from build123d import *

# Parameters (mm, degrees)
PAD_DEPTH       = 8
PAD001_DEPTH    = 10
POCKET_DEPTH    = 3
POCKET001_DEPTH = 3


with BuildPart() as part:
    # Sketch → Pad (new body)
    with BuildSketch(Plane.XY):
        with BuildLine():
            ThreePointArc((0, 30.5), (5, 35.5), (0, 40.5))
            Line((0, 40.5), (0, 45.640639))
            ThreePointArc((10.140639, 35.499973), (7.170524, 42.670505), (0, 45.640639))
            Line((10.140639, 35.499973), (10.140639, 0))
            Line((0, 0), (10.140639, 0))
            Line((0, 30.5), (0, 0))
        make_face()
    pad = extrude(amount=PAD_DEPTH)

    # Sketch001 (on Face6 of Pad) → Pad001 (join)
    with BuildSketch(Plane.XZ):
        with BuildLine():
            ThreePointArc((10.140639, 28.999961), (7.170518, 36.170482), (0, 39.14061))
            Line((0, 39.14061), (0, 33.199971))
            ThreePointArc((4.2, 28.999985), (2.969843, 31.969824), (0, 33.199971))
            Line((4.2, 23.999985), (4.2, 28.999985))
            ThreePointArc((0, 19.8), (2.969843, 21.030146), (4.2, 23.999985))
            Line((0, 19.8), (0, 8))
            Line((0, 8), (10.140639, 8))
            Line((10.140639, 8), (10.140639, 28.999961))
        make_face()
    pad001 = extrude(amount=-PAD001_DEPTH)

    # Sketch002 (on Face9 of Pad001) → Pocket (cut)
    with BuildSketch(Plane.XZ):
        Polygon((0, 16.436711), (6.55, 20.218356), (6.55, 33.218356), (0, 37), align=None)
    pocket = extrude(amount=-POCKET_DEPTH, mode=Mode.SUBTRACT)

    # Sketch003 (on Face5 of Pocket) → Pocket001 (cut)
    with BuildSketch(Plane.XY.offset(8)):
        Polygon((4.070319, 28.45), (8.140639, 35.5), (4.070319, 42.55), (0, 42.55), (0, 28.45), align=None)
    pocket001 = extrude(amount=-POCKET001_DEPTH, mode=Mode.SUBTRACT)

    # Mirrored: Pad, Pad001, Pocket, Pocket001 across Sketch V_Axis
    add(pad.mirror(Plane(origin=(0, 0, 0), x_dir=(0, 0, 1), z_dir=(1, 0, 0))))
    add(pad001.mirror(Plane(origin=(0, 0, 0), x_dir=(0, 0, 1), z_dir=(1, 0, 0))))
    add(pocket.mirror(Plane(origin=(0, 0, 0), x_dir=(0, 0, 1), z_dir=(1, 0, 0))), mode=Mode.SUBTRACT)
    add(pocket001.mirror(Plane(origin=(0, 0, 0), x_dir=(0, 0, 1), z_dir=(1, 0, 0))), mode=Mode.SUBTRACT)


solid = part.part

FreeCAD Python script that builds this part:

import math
import FreeCAD as App
import Part
import Sketcher
from FreeCAD import Vector
Q = App.Units.Quantity

doc = App.newDocument("Part")
params = doc.addObject("Spreadsheet::Sheet", "Params")
for row, (alias, value) in enumerate([
    ("sketch1_radius", "5 mm"),
    ("sketch1_height", "30.5 mm"),
    ("pad1_length", "8 mm"),
    ("sketch2_radius", "4.200002 mm"),
    ("sketch2_height", "5 mm"),
    ("sketch2_height2", "11.8 mm"),
    ("pad2_length", "10 mm"),
    ("sketch3_height", "13 mm"),
    ("pocket1_length", "3 mm"),
    ("sketch4_height", "14.1 mm"),
    ("pocket2_length", "3 mm"),
], start=1):
    params.set(f"A{row}", alias)
    params.set(f"B{row}", "=" + value)
    params.setAlias(f"B{row}", alias)

body = doc.addObject("PartDesign::Body", "Body")

# Sketch on XY plane
sketch1 = body.newObject("Sketcher::SketchObject", "Sketch")
sketch1.AttachmentSupport = (doc.getObject("XY_Plane"), [""])
sketch1.MapMode = "FlatFace"
sketch1.addGeometry([
    Part.ArcOfCircle(Part.Circle(Vector(0, 36, 0), Vector(0, 0, 1), 5), math.radians(-90), math.radians(90)),  # 0
    Part.LineSegment(Vector(0, 30, 0), Vector(0, 0, 0)),  # 1
    Part.LineSegment(Vector(0, 0, 0), Vector(10, 0, 0)),  # 2
    Part.LineSegment(Vector(10, 0, 0), Vector(10, 35, 0)),  # 3
    Part.ArcOfCircle(Part.Circle(Vector(0, 35, 0), Vector(0, 0, 1), 10), math.radians(0), math.radians(90)),  # 4
    Part.LineSegment(Vector(0, 46, 0), Vector(0, 40, 0)),  # 5
], False)
sketch1.addConstraint([
    Sketcher.Constraint("Coincident", 0, 1, 1, 1),
    Sketcher.Constraint("Coincident", 1, 2, 2, 1),
    Sketcher.Constraint("Coincident", 2, 2, 3, 1),
    Sketcher.Constraint("Coincident", 3, 2, 4, 1),
    Sketcher.Constraint("Coincident", 4, 2, 5, 1),
    Sketcher.Constraint("Coincident", 5, 2, 0, 2),
    Sketcher.Constraint("Vertical", 1),
    Sketcher.Constraint("Horizontal", 2),
    Sketcher.Constraint("Vertical", 3),
    Sketcher.Constraint("Vertical", 5),
    Sketcher.Constraint("Coincident", 1, 2, -1, 1),
    Sketcher.Constraint("Coincident", 4, 3, 0, 3),
    Sketcher.Constraint("PointOnObject", 0, 3, -2),
    Sketcher.Constraint("PointOnObject", 4, 2, -2),
    Sketcher.Constraint("Radius", 0, 5.0),
    Sketcher.Constraint("DistanceY", 1, 2, 1, 1, 30.5),
    Sketcher.Constraint("Radius", 4, 10.140639),
    Sketcher.Constraint("DistanceY", 3, 1, 3, 2, 35.499973),
])
sketch1.setExpression("Constraints[14]", "Params.sketch1_radius")
sketch1.setExpression("Constraints[15]", "Params.sketch1_height")
pad1 = body.newObject("PartDesign::Pad", "Pad")
pad1.Profile = sketch1
pad1.setExpression("Length", "Params.pad1_length")

# Sketch on XZ plane
sketch2 = body.newObject("Sketcher::SketchObject", "Sketch001")
sketch2.AttachmentSupport = (doc.getObject("XZ_Plane"), [""])
sketch2.MapMode = "FlatFace"
sketch2.addGeometry([
    Part.ArcOfCircle(Part.Circle(Vector(0, 29, 0), Vector(0, 0, 1), 10.1), math.radians(0), math.radians(90)),  # 0
    Part.LineSegment(Vector(0, 39.1, 0), Vector(0, 33.2, 0)),  # 1
    Part.ArcOfCircle(Part.Circle(Vector(0, 29, 0), Vector(0, 0, 1), 4.2), math.radians(0), math.radians(90)),  # 2
    Part.LineSegment(Vector(4.2, 29, 0), Vector(4.2, 24, 0)),  # 3
    Part.ArcOfCircle(Part.Circle(Vector(0, 24, 0), Vector(0, 0, 1), 4.2), math.radians(-90), math.radians(0)),  # 4
    Part.LineSegment(Vector(0, 19.8, 0), Vector(0, 8, 0)),  # 5
    Part.LineSegment(Vector(0, 8, 0), Vector(10.1, 8, 0)),  # 6
    Part.LineSegment(Vector(10.1, 8, 0), Vector(10.1, 29, 0)),  # 7
], False)
sketch2.addConstraint([
    Sketcher.Constraint("Coincident", 0, 2, 1, 1),
    Sketcher.Constraint("Coincident", 1, 2, 2, 2),
    Sketcher.Constraint("Coincident", 2, 1, 3, 1),
    Sketcher.Constraint("Coincident", 3, 2, 4, 2),
    Sketcher.Constraint("Coincident", 4, 1, 5, 1),
    Sketcher.Constraint("Coincident", 5, 2, 6, 1),
    Sketcher.Constraint("Coincident", 6, 2, 7, 1),
    Sketcher.Constraint("Tangent", 7, 2, 0, 1),
    Sketcher.Constraint("Vertical", 1),
    Sketcher.Constraint("Vertical", 3),
    Sketcher.Constraint("Vertical", 5),
    Sketcher.Constraint("Horizontal", 6),
    Sketcher.Constraint("Vertical", 7),
    Sketcher.Constraint("Coincident", 2, 3, 0, 3),
    Sketcher.Constraint("Equal", 2, 4),
    Sketcher.Constraint("PointOnObject", 0, 3, -2),
    Sketcher.Constraint("PointOnObject", 0, 2, -2),
    Sketcher.Constraint("PointOnObject", 4, 1, -2),
    Sketcher.Constraint("Radius", 2, 4.200002),
    Sketcher.Constraint("DistanceY", 3, 2, 3, 1, 5.0),
    Sketcher.Constraint("DistanceY", 5, 2, 5, 1, 11.8),
    Sketcher.Constraint("DistanceY", -1, 1, 4, 3, 24.0),
    Sketcher.Constraint("Radius", 0, 10.140639),
    Sketcher.Constraint("DistanceY", 7, 1, 7, 2, 20.999961),
    Sketcher.Constraint("DistanceY", -1, 1, 2, 1, 28.999985),
])
sketch2.setExpression("Constraints[18]", "Params.sketch2_radius")
sketch2.setExpression("Constraints[19]", "Params.sketch2_height")
sketch2.setExpression("Constraints[20]", "Params.sketch2_height2")
pad2 = body.newObject("PartDesign::Pad", "Pad001")
pad2.Profile = sketch2
pad2.setExpression("Length", "Params.pad2_length")
pad2.Reversed = True

# Sketch on XZ plane
sketch3 = body.newObject("Sketcher::SketchObject", "Sketch002")
sketch3.AttachmentSupport = (doc.getObject("XZ_Plane"), [""])
sketch3.MapMode = "FlatFace"
sketch3.addGeometry([
    Part.LineSegment(Vector(0, 16, 0), Vector(7, 20, 0)),
    Part.LineSegment(Vector(7, 20, 0), Vector(7, 33, 0)),
    Part.LineSegment(Vector(7, 33, 0), Vector(0, 37, 0)),
    Part.LineSegment(Vector(0, 37, 0), Vector(0, 16, 0)),
], False)
sketch3.addConstraint([
    Sketcher.Constraint("Coincident", 0, 2, 1, 1),
    Sketcher.Constraint("Coincident", 1, 2, 2, 1),
    Sketcher.Constraint("Coincident", 2, 2, 3, 1),
    Sketcher.Constraint("Coincident", 3, 2, 0, 1),
    Sketcher.Constraint("Vertical", 1),
    Sketcher.Constraint("Vertical", 3),
    Sketcher.Constraint("PointOnObject", 2, 2, -2),
    Sketcher.Constraint("Equal", 0, 2),
    Sketcher.Constraint("DistanceY", 1, 1, 1, 2, 13.0),
    Sketcher.Constraint("Angle", 0, Q("30.000005 deg")),
    Sketcher.Constraint("DistanceY", -1, 1, 2, 2, 37.0),
    Sketcher.Constraint("DistanceX", -1, 1, 0, 2, 6.55),
])
sketch3.setExpression("Constraints[8]", "Params.sketch3_height")
pocket1 = body.newObject("PartDesign::Pocket", "Pocket")
pocket1.Profile = sketch3
pocket1.setExpression("Length", "Params.pocket1_length")

# Sketch on XY plane
sketch4 = body.newObject("Sketcher::SketchObject", "Sketch003")
sketch4.AttachmentSupport = (doc.getObject("XY_Plane"), [""])
sketch4.MapMode = "FlatFace"
sketch4.AttachmentOffset = App.Placement(Vector(0, 0, 8), App.Rotation())
sketch4.addGeometry([
    Part.LineSegment(Vector(4.1, 28.4, 0), Vector(8.1, 35.5, 0)),  # 0
    Part.LineSegment(Vector(8.1, 35.5, 0), Vector(4.1, 42.5, 0)),  # 1
    Part.LineSegment(Vector(4.1, 42.5, 0), Vector(0, 42.5, 0)),  # 2
    Part.LineSegment(Vector(0, 42.5, 0), Vector(0, 28.4, 0)),  # 3
    Part.LineSegment(Vector(0, 28.4, 0), Vector(4.1, 28.4, 0)),  # 4
], False)
sketch4.addConstraint([
    Sketcher.Constraint("Coincident", 0, 2, 1, 1),
    Sketcher.Constraint("Coincident", 1, 2, 2, 1),
    Sketcher.Constraint("Coincident", 2, 2, 3, 1),
    Sketcher.Constraint("Coincident", 3, 2, 4, 1),
    Sketcher.Constraint("Coincident", 4, 2, 0, 1),
    Sketcher.Constraint("Horizontal", 2),
    Sketcher.Constraint("Vertical", 3),
    Sketcher.Constraint("Horizontal", 4),
    Sketcher.Constraint("PointOnObject", 2, 2, -2),
    Sketcher.Constraint("Vertical", 1, 2, 4, 2),
    Sketcher.Constraint("Equal", 0, 1),
    Sketcher.Constraint("Angle", 0, Q("59.999996 deg")),
    Sketcher.Constraint("DistanceY", 3, 2, 3, 1, 14.1),
    Sketcher.Constraint("DistanceY", -1, 1, 0, 2, 35.5),
    Sketcher.Constraint("DistanceX", 2, 2, 2, 1, 4.070319),
])
sketch4.setExpression("Constraints[12]", "Params.sketch4_height")
pocket2 = body.newObject("PartDesign::Pocket", "Pocket001")
pocket2.Profile = sketch4
pocket2.setExpression("Length", "Params.pocket2_length")
doc.recompute()

mirrored = body.newObject("PartDesign::Mirrored", "Mirrored")
mirrored.Originals = [pad1, pad2, pocket1, pocket2]
mirrored.MirrorPlane = (doc.getObject("YZ_Plane"), [""])
body.Tip = mirrored

doc.recompute()
